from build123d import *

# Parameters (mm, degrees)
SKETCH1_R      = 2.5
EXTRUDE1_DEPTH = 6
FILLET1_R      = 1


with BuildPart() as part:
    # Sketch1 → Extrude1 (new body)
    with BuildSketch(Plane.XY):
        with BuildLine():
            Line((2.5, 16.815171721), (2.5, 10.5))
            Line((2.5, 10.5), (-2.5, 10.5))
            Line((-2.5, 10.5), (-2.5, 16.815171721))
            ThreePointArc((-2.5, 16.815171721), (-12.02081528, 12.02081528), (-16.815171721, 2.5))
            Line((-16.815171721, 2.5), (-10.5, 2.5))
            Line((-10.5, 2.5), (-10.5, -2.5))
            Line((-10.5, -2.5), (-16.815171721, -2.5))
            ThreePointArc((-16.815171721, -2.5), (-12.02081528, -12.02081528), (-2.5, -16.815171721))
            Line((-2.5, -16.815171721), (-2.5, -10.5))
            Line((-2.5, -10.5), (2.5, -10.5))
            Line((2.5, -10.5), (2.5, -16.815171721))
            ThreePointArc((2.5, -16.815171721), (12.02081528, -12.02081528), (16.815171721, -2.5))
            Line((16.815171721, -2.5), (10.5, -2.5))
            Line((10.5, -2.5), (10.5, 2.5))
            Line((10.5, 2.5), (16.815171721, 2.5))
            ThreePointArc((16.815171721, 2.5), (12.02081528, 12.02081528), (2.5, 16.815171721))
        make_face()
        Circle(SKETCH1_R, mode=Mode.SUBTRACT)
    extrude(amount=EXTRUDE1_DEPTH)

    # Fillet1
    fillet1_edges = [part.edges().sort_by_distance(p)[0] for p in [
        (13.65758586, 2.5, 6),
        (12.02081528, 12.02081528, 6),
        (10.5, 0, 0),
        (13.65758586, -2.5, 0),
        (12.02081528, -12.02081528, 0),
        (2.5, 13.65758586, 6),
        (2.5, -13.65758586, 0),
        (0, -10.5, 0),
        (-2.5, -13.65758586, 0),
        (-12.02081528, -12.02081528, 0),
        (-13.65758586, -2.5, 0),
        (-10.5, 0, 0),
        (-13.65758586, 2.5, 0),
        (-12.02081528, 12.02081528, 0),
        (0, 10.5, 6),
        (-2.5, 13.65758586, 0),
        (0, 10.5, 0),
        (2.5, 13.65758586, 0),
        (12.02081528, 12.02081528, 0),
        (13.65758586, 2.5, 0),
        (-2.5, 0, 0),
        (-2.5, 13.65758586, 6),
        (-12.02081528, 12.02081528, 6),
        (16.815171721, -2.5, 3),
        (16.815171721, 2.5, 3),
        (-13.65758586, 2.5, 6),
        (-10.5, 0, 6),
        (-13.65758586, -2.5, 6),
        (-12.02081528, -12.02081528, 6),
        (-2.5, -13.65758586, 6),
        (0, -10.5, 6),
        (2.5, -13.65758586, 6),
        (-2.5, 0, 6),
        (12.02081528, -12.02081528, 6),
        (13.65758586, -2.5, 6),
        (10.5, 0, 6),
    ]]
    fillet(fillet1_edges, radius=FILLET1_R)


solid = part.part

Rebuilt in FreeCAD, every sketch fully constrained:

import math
import FreeCAD as App
import Part
import Sketcher


def edges_at(feature, points):
    """Names of the edges that pass closest to the given points."""
    edges = feature.Shape.Edges
    near = lambda p: min(range(len(edges)), key=lambda i: edges[i].distToShape(Part.Vertex(*p))[0])
    return sorted({f"Edge{near(p) + 1}" for p in points})

doc = App.newDocument("Part")
body = doc.addObject("PartDesign::Body", "Body")

sketch1 = body.newObject("Sketcher::SketchObject", "Sketch")
sketch1.AttachmentSupport = (doc.getObject("XY_Plane"), [""])
sketch1.MapMode = "FlatFace"
sketch1.addGeometry(Part.LineSegment(App.Vector(2.5, 16.8, 0), App.Vector(2.5, 10.5, 0)), False)
sketch1.addGeometry(Part.LineSegment(App.Vector(2.5, 10.5, 0), App.Vector(-2.5, 10.5, 0)), False)
sketch1.addGeometry(Part.LineSegment(App.Vector(-2.5, 10.5, 0), App.Vector(-2.5, 16.8, 0)), False)
sketch1.addGeometry(Part.ArcOfCircle(Part.Circle(App.Vector(0, 0, 0), App.Vector(0, 0, 1), 17), math.radians(98), math.radians(172)), False)
sketch1.addGeometry(Part.LineSegment(App.Vector(-16.8, 2.5, 0), App.Vector(-10.5, 2.5, 0)), False)
sketch1.addGeometry(Part.LineSegment(App.Vector(-10.5, 2.5, 0), App.Vector(-10.5, -2.5, 0)), False)
sketch1.addGeometry(Part.LineSegment(App.Vector(-10.5, -2.5, 0), App.Vector(-16.8, -2.5, 0)), False)
sketch1.addGeometry(Part.ArcOfCircle(Part.Circle(App.Vector(0, 0, 0), App.Vector(0, 0, 1), 17), math.radians(-172), math.radians(-98)), False)
sketch1.addGeometry(Part.LineSegment(App.Vector(-2.5, -16.8, 0), App.Vector(-2.5, -10.5, 0)), False)
sketch1.addGeometry(Part.LineSegment(App.Vector(-2.5, -10.5, 0), App.Vector(2.5, -10.5, 0)), False)
sketch1.addGeometry(Part.LineSegment(App.Vector(2.5, -10.5, 0), App.Vector(2.5, -16.8, 0)), False)
sketch1.addGeometry(Part.ArcOfCircle(Part.Circle(App.Vector(0, 0, 0), App.Vector(0, 0, 1), 17), math.radians(-82), math.radians(-8)), False)
sketch1.addGeometry(Part.LineSegment(App.Vector(16.8, -2.5, 0), App.Vector(10.5, -2.5, 0)), False)
sketch1.addGeometry(Part.LineSegment(App.Vector(10.5, -2.5, 0), App.Vector(10.5, 2.5, 0)), False)
sketch1.addGeometry(Part.LineSegment(App.Vector(10.5, 2.5, 0), App.Vector(16.8, 2.5, 0)), False)
sketch1.addGeometry(Part.ArcOfCircle(Part.Circle(App.Vector(0, 0, 0), App.Vector(0, 0, 1), 17), math.radians(8), math.radians(82)), False)
sketch1.addGeometry(Part.Circle(App.Vector(0, 0, 0), App.Vector(0, 0, 1), 2.5), False)
sketch1.addConstraint(Sketcher.Constraint("Coincident", 0, 2, 1, 1))
sketch1.addConstraint(Sketcher.Constraint("Coincident", 1, 2, 2, 1))
sketch1.addConstraint(Sketcher.Constraint("Coincident", 2, 2, 3, 1))
sketch1.addConstraint(Sketcher.Constraint("Coincident", 3, 2, 4, 1))
sketch1.addConstraint(Sketcher.Constraint("Coincident", 4, 2, 5, 1))
sketch1.addConstraint(Sketcher.Constraint("Coincident", 5, 2, 6, 1))
sketch1.addConstraint(Sketcher.Constraint("Coincident", 6, 2, 7, 1))
sketch1.addConstraint(Sketcher.Constraint("Coincident", 7, 2, 8, 1))
sketch1.addConstraint(Sketcher.Constraint("Coincident", 8, 2, 9, 1))
sketch1.addConstraint(Sketcher.Constraint("Coincident", 9, 2, 10, 1))
sketch1.addConstraint(Sketcher.Constraint("Coincident", 10, 2, 11, 1))
sketch1.addConstraint(Sketcher.Constraint("Coincident", 11, 2, 12, 1))
sketch1.addConstraint(Sketcher.Constraint("Coincident", 12, 2, 13, 1))
sketch1.addConstraint(Sketcher.Constraint("Coincident", 13, 2, 14, 1))
sketch1.addConstraint(Sketcher.Constraint("Coincident", 14, 2, 15, 1))
sketch1.addConstraint(Sketcher.Constraint("Coincident", 15, 2, 0, 1))
sketch1.addConstraint(Sketcher.Constraint("Vertical", 0))
sketch1.addConstraint(Sketcher.Constraint("Horizontal", 1))
sketch1.addConstraint(Sketcher.Constraint("Vertical", 2))
sketch1.addConstraint(Sketcher.Constraint("Horizontal", 4))
sketch1.addConstraint(Sketcher.Constraint("Vertical", 5))
sketch1.addConstraint(Sketcher.Constraint("Horizontal", 6))
sketch1.addConstraint(Sketcher.Constraint("Vertical", 8))
sketch1.addConstraint(Sketcher.Constraint("Horizontal", 9))
sketch1.addConstraint(Sketcher.Constraint("Vertical", 10))
sketch1.addConstraint(Sketcher.Constraint("Horizontal", 12))
sketch1.addConstraint(Sketcher.Constraint("Vertical", 13))
sketch1.addConstraint(Sketcher.Constraint("Horizontal", 14))
sketch1.addConstraint(Sketcher.Constraint("Coincident", 3, 3, -1, 1))
sketch1.addConstraint(Sketcher.Constraint("Coincident", 7, 3, -1, 1))
sketch1.addConstraint(Sketcher.Constraint("Coincident", 11, 3, -1, 1))
sketch1.addConstraint(Sketcher.Constraint("Coincident", 15, 3, -1, 1))
sketch1.addConstraint(Sketcher.Constraint("Coincident", 16, 3, -1, 1))
sketch1.addConstraint(Sketcher.Constraint("Equal", 3, 7))
sketch1.addConstraint(Sketcher.Constraint("Equal", 7, 11))
sketch1.addConstraint(Sketcher.Constraint("Equal", 11, 15))
sketch1.addConstraint(Sketcher.Constraint("Symmetric", 0, 2, 8, 2, -1, 1))
sketch1.addConstraint(Sketcher.Constraint("Symmetric", 4, 2, 12, 2, -1, 1))
sketch1.addConstraint(Sketcher.Constraint("Horizontal", 7, 2, 10, 2))
sketch1.addConstraint(Sketcher.Constraint("Horizontal", 6, 2, 11, 2))
sketch1.addConstraint(Sketcher.Constraint("Horizontal", 4, 2, 13, 2))
sketch1.addConstraint(Sketcher.Constraint("Horizontal", 2, 2, 15, 2))
sketch1.addConstraint(Sketcher.Constraint("Equal", 14, 0))
sketch1.addConstraint(Sketcher.Constraint("Equal", 9, 5))
sketch1.addConstraint(Sketcher.Constraint("Diameter", 16, 5.0))
sketch1.addConstraint(Sketcher.Constraint("Radius", 3, 17.0))
sketch1.addConstraint(Sketcher.Constraint("DistanceX", 1, 2, 1, 1, 5.0))
sketch1.addConstraint(Sketcher.Constraint("DistanceY", 3, 2, 1, 2, 8.0))
pad1 = body.newObject("PartDesign::Pad", "Pad")
pad1.Profile = sketch1
pad1.Length = 6
doc.recompute()

fillet = body.newObject("PartDesign::Fillet", "Fillet")
fillet.Base = (pad1, edges_at(pad1, [
    (13.658, 2.5, 6),
    (12.021, 12.021, 6),
    (10.5, 0, 0),
    (13.658, -2.5, 0),
    (12.021, -12.021, 0),
    (2.5, 13.658, 6),
    (2.5, -13.658, 0),
    (0, -10.5, 0),
    (-2.5, -13.658, 0),
    (-12.021, -12.021, 0),
    (-13.658, -2.5, 0),
    (-10.5, 0, 0),
    (-13.658, 2.5, 0),
    (-12.021, 12.021, 0),
    (0, 10.5, 6),
    (-2.5, 13.658, 0),
    (0, 10.5, 0),
    (2.5, 13.658, 0),
    (12.021, 12.021, 0),
    (13.658, 2.5, 0),
    (-2.5, 0, 0),
    (-2.5, 13.658, 6),
    (-12.021, 12.021, 6),
    (16.815, -2.5, 3),
    (16.815, 2.5, 3),
    (-13.658, 2.5, 6),
    (-10.5, 0, 6),
    (-13.658, -2.5, 6),
    (-12.021, -12.021, 6),
    (-2.5, -13.658, 6),
    (0, -10.5, 6),
    (2.5, -13.658, 6),
    (-2.5, 0, 6),
    (12.021, -12.021, 6),
    (13.658, -2.5, 6),
    (10.5, 0, 6),
]))
fillet.Radius = 1

doc.recompute()
